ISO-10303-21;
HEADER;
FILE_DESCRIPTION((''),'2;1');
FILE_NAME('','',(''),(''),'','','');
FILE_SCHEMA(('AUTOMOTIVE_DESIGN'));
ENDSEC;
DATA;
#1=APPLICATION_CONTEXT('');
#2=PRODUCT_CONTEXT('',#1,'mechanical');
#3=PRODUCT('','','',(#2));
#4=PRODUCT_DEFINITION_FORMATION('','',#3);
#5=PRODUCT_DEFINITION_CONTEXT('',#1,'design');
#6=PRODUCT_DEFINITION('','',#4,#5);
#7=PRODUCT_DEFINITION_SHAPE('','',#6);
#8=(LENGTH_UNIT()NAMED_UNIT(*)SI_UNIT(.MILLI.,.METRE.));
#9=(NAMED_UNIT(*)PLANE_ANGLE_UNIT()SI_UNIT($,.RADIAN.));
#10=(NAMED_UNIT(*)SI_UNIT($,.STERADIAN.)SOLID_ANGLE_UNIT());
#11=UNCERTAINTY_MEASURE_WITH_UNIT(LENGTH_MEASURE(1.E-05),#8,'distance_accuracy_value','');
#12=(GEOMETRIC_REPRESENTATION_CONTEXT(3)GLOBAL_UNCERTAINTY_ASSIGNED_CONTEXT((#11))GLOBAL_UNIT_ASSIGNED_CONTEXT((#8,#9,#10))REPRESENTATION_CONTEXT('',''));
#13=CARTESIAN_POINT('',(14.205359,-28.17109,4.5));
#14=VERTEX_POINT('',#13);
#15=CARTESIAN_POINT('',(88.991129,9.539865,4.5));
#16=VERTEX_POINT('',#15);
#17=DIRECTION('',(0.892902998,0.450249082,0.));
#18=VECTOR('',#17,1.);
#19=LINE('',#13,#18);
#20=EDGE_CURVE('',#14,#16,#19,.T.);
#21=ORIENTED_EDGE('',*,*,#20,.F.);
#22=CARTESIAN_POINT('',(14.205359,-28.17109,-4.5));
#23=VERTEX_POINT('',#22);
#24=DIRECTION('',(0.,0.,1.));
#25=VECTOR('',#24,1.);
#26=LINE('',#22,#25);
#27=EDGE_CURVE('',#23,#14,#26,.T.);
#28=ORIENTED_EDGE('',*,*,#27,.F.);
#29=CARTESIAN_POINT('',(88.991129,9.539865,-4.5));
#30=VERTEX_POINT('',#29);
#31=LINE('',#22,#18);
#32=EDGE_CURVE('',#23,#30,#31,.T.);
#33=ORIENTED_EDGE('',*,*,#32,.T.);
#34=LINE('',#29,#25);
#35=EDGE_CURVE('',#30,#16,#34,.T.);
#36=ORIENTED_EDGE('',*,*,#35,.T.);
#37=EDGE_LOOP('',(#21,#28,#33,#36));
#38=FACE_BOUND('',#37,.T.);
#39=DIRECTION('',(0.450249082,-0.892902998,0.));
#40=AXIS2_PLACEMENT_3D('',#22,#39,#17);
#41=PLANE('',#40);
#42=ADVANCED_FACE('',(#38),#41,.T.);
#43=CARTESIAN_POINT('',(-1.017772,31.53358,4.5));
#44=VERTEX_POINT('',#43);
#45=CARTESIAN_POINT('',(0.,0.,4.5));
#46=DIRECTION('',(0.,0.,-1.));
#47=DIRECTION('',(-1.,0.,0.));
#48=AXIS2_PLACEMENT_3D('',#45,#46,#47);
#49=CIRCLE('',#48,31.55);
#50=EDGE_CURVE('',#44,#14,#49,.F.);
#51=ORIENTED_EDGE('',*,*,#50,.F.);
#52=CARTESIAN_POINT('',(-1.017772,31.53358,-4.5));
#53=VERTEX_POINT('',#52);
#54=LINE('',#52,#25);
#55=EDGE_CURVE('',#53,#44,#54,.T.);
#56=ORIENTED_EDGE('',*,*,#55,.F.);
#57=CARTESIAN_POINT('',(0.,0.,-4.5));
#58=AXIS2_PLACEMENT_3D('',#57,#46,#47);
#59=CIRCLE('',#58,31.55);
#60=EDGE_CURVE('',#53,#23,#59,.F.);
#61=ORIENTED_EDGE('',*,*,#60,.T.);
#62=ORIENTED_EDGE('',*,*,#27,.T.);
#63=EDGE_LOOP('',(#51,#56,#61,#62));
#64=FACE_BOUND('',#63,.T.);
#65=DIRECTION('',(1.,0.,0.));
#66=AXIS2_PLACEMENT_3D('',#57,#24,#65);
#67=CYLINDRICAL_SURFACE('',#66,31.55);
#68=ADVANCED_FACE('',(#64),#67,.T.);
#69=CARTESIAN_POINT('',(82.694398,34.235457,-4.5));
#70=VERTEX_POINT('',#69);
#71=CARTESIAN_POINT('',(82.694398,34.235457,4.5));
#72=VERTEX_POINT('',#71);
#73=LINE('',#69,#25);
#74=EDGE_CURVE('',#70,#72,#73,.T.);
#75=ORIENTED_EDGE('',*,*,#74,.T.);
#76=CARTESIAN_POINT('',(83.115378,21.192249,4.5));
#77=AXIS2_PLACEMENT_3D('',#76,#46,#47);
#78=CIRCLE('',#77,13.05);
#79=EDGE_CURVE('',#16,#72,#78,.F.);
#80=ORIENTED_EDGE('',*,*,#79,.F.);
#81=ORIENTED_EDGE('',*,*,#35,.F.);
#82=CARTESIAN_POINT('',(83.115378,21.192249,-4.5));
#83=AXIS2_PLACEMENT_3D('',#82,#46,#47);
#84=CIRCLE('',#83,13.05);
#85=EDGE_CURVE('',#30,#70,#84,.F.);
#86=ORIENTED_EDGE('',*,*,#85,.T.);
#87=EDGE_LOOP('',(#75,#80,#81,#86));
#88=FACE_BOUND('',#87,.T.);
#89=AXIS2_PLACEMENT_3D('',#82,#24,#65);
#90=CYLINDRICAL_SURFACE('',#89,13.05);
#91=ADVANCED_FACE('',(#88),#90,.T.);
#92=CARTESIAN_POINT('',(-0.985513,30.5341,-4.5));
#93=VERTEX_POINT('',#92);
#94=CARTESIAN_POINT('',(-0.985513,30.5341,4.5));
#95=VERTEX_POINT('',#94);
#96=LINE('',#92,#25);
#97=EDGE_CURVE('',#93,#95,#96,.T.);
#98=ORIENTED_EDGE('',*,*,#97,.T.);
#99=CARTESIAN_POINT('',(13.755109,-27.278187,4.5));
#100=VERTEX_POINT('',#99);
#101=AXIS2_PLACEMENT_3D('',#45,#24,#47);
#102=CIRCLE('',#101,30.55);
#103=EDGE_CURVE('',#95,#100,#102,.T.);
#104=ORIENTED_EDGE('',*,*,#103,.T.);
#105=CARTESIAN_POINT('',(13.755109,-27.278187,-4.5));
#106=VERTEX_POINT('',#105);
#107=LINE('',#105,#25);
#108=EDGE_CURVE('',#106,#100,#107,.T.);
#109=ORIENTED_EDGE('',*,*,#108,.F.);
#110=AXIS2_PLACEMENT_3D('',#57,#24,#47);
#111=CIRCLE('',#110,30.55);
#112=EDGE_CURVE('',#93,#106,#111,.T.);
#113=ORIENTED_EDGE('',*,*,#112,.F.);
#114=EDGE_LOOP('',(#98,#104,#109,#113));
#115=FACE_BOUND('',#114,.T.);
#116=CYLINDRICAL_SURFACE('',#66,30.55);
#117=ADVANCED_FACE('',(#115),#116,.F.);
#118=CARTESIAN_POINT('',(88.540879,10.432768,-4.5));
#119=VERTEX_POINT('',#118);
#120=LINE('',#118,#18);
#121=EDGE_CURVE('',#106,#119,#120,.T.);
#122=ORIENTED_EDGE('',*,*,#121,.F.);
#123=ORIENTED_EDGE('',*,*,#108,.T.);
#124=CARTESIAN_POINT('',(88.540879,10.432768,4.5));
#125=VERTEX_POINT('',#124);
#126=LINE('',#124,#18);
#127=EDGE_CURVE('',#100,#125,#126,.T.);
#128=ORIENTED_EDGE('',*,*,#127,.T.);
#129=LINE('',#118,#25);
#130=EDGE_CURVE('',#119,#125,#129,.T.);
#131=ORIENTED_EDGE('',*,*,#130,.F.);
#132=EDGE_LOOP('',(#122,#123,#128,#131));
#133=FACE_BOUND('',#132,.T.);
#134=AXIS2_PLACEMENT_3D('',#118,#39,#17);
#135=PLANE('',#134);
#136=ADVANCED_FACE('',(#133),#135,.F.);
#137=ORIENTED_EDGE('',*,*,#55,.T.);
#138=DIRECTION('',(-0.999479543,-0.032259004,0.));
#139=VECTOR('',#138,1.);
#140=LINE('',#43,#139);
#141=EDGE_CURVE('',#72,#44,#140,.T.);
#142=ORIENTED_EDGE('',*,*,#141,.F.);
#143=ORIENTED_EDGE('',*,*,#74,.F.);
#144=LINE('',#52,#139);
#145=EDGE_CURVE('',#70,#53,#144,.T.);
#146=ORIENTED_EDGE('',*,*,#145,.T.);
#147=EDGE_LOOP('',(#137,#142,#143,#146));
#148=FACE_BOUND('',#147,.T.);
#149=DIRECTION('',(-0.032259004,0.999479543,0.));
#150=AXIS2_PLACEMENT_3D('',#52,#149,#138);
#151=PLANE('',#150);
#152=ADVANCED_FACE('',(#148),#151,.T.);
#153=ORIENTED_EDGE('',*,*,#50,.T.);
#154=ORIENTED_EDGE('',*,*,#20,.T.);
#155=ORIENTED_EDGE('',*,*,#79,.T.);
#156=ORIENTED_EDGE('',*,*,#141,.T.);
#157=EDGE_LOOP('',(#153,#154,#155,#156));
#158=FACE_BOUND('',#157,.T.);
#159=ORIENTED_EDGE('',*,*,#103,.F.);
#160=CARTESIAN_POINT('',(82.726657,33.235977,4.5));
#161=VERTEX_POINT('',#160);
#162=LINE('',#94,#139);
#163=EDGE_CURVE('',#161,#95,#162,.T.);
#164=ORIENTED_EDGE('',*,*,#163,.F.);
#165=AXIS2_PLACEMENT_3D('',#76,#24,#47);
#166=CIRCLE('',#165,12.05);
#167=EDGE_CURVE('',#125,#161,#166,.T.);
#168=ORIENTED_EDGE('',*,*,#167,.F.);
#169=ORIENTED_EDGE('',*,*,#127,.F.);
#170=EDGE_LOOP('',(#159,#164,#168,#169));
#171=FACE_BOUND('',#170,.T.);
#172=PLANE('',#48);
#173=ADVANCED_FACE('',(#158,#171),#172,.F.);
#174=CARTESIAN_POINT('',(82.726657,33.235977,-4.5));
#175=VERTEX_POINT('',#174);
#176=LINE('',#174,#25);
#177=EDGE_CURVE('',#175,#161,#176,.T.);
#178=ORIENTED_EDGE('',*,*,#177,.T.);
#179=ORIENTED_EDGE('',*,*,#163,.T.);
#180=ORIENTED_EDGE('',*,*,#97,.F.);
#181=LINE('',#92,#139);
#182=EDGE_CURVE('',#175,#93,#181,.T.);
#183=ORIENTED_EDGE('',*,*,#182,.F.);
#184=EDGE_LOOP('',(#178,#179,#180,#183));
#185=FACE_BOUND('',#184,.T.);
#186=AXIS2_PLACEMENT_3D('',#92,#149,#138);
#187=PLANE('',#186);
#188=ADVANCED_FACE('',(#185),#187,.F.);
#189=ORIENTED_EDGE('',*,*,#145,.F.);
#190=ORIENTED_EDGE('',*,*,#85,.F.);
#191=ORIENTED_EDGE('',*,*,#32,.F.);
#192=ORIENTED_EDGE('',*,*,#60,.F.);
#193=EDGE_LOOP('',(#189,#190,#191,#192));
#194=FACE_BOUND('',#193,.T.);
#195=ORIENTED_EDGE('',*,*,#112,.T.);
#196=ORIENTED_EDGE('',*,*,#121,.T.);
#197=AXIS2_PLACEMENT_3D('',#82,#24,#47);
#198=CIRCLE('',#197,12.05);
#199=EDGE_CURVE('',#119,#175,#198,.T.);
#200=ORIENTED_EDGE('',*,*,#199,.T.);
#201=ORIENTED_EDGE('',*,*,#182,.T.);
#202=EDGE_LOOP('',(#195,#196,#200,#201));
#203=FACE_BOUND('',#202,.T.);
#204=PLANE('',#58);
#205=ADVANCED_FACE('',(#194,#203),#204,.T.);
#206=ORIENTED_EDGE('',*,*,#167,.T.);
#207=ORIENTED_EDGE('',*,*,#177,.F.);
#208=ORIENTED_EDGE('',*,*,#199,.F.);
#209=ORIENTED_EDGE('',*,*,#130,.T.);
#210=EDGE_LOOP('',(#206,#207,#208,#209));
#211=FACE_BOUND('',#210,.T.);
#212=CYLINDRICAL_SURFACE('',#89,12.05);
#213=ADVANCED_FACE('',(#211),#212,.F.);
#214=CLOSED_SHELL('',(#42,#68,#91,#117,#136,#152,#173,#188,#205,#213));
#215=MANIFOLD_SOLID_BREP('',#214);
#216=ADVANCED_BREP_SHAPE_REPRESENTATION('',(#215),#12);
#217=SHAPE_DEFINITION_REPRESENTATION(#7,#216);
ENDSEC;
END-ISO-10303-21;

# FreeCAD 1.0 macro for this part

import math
import FreeCAD as App
import Part
import Sketcher

V = App.Vector
Q = App.Units.Quantity

doc = App.newDocument("Part")
body = doc.addObject("PartDesign::Body", "Body")

sketch1 = doc.addObject("Sketcher::SketchObject", "Sketch")
body.addObject(sketch1)
sketch1.AttachmentSupport = (doc.XY_Plane, [""])
sketch1.MapMode = "FlatFace"
sketch1.addGeometry(Part.LineSegment(V(14.205359, -28.17109, 0), V(88.991129, 9.539865, 0)), False)
sketch1.addGeometry(Part.ArcOfCircle(Part.Circle(V(83.115378, 21.192249, 0), V(0, 0, 1), 13.05), math.radians(-63.240334), math.radians(91.848626)), False)
sketch1.addGeometry(Part.LineSegment(V(82.694398, 34.235457, 0), V(-1.017772, 31.53358, 0)), False)
sketch1.addGeometry(Part.ArcOfCircle(Part.Circle(V(0, 0, 0), V(0, 0, 1), 31.55), math.radians(91.848626), math.radians(296.759666)), False)
sketch1.addGeometry(Part.LineSegment(V(88.540879, 10.432768, 0), V(13.755109, -27.278187, 0)), False)
sketch1.addGeometry(Part.ArcOfCircle(Part.Circle(V(0, 0, 0), V(0, 0, 1), 30.55), math.radians(91.848626), math.radians(296.759666)), False)
sketch1.addGeometry(Part.LineSegment(V(-0.985513, 30.5341, 0), V(82.726657, 33.235977, 0)), False)
sketch1.addGeometry(Part.ArcOfCircle(Part.Circle(V(83.115378, 21.192249, 0), V(0, 0, 1), 12.05), math.radians(-63.240334), math.radians(91.848626)), False)
sketch1.addConstraint(Sketcher.Constraint("Tangent", 0, 2, 1, 1))
sketch1.addConstraint(Sketcher.Constraint("Tangent", 1, 2, 2, 1))
sketch1.addConstraint(Sketcher.Constraint("Tangent", 2, 2, 3, 1))
sketch1.addConstraint(Sketcher.Constraint("Tangent", 3, 2, 0, 1))
sketch1.addConstraint(Sketcher.Constraint("Tangent", 4, 2, 5, 2))
sketch1.addConstraint(Sketcher.Constraint("Tangent", 5, 1, 6, 1))
sketch1.addConstraint(Sketcher.Constraint("Tangent", 6, 2, 7, 2))
sketch1.addConstraint(Sketcher.Constraint("Tangent", 7, 1, 4, 1))
sketch1.addConstraint(Sketcher.Constraint("Coincident", 3, 3, -1, 1))
sketch1.addConstraint(Sketcher.Constraint("Coincident", 5, 3, -1, 1))
sketch1.addConstraint(Sketcher.Constraint("Coincident", 7, 3, 1, 3))
sketch1.addConstraint(Sketcher.Constraint("Parallel", 0, 4))
sketch1.addConstraint(Sketcher.Constraint("Radius", 1, Q("13.05 mm")))
sketch1.addConstraint(Sketcher.Constraint("Radius", 3, Q("31.55 mm")))
sketch1.addConstraint(Sketcher.Constraint("Radius", 5, Q("30.55 mm")))
sketch1.addConstraint(Sketcher.Constraint("DistanceY", -1, 1, 5, 1, Q("30.5341 mm")))
sketch1.addConstraint(Sketcher.Constraint("DistanceX", 1, 3, 7, 1, Q("5.425501 mm")))
pad1 = doc.addObject("PartDesign::Pad", "Pad")
body.addObject(pad1)
pad1.Profile = sketch1
pad1.Type = "TwoLengths"
pad1.Length = 4.5
pad1.Length2 = 4.5

doc.recompute()
